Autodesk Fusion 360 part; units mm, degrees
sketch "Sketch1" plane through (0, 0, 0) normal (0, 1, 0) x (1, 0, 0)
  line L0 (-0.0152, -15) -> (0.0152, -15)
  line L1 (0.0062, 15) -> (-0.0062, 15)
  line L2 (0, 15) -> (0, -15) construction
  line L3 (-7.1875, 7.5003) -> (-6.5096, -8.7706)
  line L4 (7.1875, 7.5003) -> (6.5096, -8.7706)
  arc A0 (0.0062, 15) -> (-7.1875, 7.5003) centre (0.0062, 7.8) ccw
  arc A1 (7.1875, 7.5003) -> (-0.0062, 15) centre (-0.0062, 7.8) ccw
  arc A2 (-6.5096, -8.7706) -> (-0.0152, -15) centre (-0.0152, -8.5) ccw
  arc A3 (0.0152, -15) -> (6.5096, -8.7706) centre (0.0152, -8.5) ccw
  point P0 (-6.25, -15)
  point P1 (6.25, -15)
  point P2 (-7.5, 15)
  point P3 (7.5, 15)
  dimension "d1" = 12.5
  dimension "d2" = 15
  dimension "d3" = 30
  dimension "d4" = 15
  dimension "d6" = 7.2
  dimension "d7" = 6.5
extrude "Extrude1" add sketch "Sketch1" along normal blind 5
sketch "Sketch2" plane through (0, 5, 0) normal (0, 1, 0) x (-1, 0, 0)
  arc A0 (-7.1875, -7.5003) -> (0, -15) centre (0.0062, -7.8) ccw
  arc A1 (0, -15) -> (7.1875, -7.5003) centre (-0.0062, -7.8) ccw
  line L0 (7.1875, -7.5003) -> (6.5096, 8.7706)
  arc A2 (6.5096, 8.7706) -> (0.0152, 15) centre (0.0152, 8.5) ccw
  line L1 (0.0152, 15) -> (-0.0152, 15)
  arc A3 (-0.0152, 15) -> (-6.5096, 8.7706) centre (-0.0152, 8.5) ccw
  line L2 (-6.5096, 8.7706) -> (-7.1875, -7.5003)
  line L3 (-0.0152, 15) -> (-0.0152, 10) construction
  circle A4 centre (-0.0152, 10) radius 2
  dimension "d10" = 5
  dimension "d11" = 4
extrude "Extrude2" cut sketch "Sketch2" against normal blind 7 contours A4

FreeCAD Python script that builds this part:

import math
import FreeCAD as App
import Part
import Sketcher
from FreeCAD import Vector

doc = App.newDocument("Part")
body = doc.addObject("PartDesign::Body", "Body")

# Sketch on XZ plane
sketch1 = body.newObject("Sketcher::SketchObject", "Sketch")
sketch1.AttachmentSupport = (doc.getObject("XZ_Plane"), [""])
sketch1.MapMode = "FlatFace"
sketch1.addGeometry([
    Part.ArcOfCircle(Part.Circle(Vector(-0.0152, 8.5, 0), Vector(0, 0, 1), 6.500035), math.radians(90), math.radians(177.614056)),  # 0
    Part.LineSegment(Vector(-0.0152, 15, 0), Vector(0.0152, 15, 0)),  # 1
    Part.ArcOfCircle(Part.Circle(Vector(0.0152, 8.5, 0), Vector(0, 0, 1), 6.5), math.radians(2.385944), math.radians(90)),  # 2
    Part.LineSegment(Vector(6.5096, 8.7706, 0), Vector(7.1875, -7.5003, 0)),  # 3
    Part.ArcOfCircle(Part.Circle(Vector(-0.0062, -7.8, 0), Vector(0, 0, 1), 7.19994), math.radians(-89.901324), math.radians(2.385646)),  # 4
    Part.LineSegment(Vector(0.0062, -15, 0), Vector(-0.0062, -15, 0)),  # 5
    Part.ArcOfCircle(Part.Circle(Vector(0.0062, -7.8, 0), Vector(0, 0, 1), 7.2), math.radians(177.614354), math.radians(269.901324)),  # 6
    Part.LineSegment(Vector(-7.1875, -7.5003, 0), Vector(-6.5096, 8.7706, 0)),  # 7
], False)
sketch1.addConstraint([
    Sketcher.Constraint("Tangent", 0, 1, 1, 1),
    Sketcher.Constraint("Tangent", 1, 2, 2, 2),
    Sketcher.Constraint("Tangent", 2, 1, 3, 1),
    Sketcher.Constraint("Tangent", 3, 2, 4, 2),
    Sketcher.Constraint("Coincident", 4, 1, 5, 1),
    Sketcher.Constraint("Coincident", 5, 2, 6, 2),
    Sketcher.Constraint("Tangent", 6, 1, 7, 1),
    Sketcher.Constraint("Tangent", 7, 2, 0, 2),
    Sketcher.Constraint("Horizontal", 1),
    Sketcher.Constraint("Horizontal", 5),
    Sketcher.Constraint("Equal", 0, 2),
    Sketcher.Constraint("Equal", 4, 6),
    Sketcher.Constraint("Symmetric", 3, 2, 6, 1, -2),
    Sketcher.Constraint("Vertical", 6, 3, 4, 1),
    Sketcher.Constraint("Vertical", 4, 3, 5, 2),
    Sketcher.Constraint("Radius", 0, 6.5),
    Sketcher.Constraint("Radius", 4, 7.2),
    Sketcher.Constraint("DistanceY", -1, 1, 0, 1, 15.0),
    Sketcher.Constraint("DistanceY", 4, 1, -1, 1, 15.0),
    Sketcher.Constraint("DistanceX", 1, 1, 1, 2, 0.0304),
    Sketcher.Constraint("DistanceX", 5, 2, 5, 1, 0.0124),
])
pad1 = body.newObject("PartDesign::Pad", "Pad")
pad1.Profile = sketch1
pad1.Length = 5
pad1.Reversed = True

# Sketch on XZ plane
sketch2 = body.newObject("Sketcher::SketchObject", "Sketch001")
sketch2.AttachmentSupport = (doc.getObject("XZ_Plane"), [""])
sketch2.MapMode = "FlatFace"
sketch2.AttachmentOffset = App.Placement(Vector(0, 0, -5), App.Rotation())
sketch2.addGeometry(Part.Circle(Vector(0.0152, 10, 0), Vector(0, 0, 1), 2), False)
sketch2.addConstraint([
    Sketcher.Constraint("Diameter", 0, 4.0),
    Sketcher.Constraint("DistanceY", -1, 1, 0, 3, 10.0),
    Sketcher.Constraint("DistanceX", -1, 1, 0, 3, 0.0152),
])
pocket1 = body.newObject("PartDesign::Pocket", "Pocket")
pocket1.Profile = sketch2
pocket1.Length = 7
pocket1.Reversed = True

doc.recompute()
